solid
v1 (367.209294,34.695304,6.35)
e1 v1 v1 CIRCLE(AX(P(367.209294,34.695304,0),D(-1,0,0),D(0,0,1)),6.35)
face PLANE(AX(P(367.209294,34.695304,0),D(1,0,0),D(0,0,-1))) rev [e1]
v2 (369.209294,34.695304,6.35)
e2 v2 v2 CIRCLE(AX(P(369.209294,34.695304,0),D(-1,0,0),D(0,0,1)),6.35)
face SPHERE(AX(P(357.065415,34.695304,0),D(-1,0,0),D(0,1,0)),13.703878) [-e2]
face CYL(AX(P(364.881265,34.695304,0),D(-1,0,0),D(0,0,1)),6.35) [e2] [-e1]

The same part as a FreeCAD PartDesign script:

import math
import FreeCAD as App
import Part
import Sketcher
from FreeCAD import Vector

doc = App.newDocument("Part")
body = doc.addObject("PartDesign::Body", "Body")

# Sketch on XY plane
sketch1 = doc.addObject("Sketcher::SketchObject", "Sketch")
body.addObject(sketch1)
sketch1.AttachmentSupport = (doc.XY_Plane, [""])
sketch1.MapMode = "FlatFace"
sketch1.addGeometry([
    Part.LineSegment(Vector(367.2, 41, 0), Vector(367.2, 34.7, 0)),
    Part.LineSegment(Vector(367.2, 34.7, 0), Vector(370.8, 34.7, 0)),
    Part.ArcOfCircle(Part.Circle(Vector(357.1, 34.7, 0), Vector(0, 0, 1), 13.7), math.radians(0), math.radians(28)),
    Part.LineSegment(Vector(369.2, 41, 0), Vector(367.2, 41, 0)),
], False)
sketch1.addGeometry(Part.LineSegment(Vector(357.1, 34.7, 0), Vector(370.8, 34.7, 0)), True)  # axis
sketch1.addConstraint([
    Sketcher.Constraint("Coincident", 0, 2, 1, 1),
    Sketcher.Constraint("Coincident", 1, 2, 2, 1),
    Sketcher.Constraint("Coincident", 2, 2, 3, 1),
    Sketcher.Constraint("Coincident", 3, 2, 0, 1),
    Sketcher.Constraint("Vertical", 0),
    Sketcher.Constraint("Horizontal", 1),
    Sketcher.Constraint("Horizontal", 3),
    Sketcher.Constraint("Horizontal", 4),
    Sketcher.Constraint("Coincident", 4, 1, 2, 3),
    Sketcher.Constraint("Coincident", 4, 2, 1, 2),
    Sketcher.Constraint("DistanceX", 3, 2, 3, 1, 2.0),
    Sketcher.Constraint("DistanceX", 1, 1, 1, 2, 3.56),
    Sketcher.Constraint("DistanceY", 0, 2, 0, 1, 6.35),
    Sketcher.Constraint("DistanceX", -1, 1, 2, 3, 357.065415),
    Sketcher.Constraint("DistanceY", -1, 1, 2, 3, 34.695304),
])
revolution = doc.addObject("PartDesign::Revolution", "Revolution")
body.addObject(revolution)
revolution.Profile = sketch1
revolution.ReferenceAxis = (sketch1, ["Axis0"])
revolution.Angle = 360

doc.recompute()
